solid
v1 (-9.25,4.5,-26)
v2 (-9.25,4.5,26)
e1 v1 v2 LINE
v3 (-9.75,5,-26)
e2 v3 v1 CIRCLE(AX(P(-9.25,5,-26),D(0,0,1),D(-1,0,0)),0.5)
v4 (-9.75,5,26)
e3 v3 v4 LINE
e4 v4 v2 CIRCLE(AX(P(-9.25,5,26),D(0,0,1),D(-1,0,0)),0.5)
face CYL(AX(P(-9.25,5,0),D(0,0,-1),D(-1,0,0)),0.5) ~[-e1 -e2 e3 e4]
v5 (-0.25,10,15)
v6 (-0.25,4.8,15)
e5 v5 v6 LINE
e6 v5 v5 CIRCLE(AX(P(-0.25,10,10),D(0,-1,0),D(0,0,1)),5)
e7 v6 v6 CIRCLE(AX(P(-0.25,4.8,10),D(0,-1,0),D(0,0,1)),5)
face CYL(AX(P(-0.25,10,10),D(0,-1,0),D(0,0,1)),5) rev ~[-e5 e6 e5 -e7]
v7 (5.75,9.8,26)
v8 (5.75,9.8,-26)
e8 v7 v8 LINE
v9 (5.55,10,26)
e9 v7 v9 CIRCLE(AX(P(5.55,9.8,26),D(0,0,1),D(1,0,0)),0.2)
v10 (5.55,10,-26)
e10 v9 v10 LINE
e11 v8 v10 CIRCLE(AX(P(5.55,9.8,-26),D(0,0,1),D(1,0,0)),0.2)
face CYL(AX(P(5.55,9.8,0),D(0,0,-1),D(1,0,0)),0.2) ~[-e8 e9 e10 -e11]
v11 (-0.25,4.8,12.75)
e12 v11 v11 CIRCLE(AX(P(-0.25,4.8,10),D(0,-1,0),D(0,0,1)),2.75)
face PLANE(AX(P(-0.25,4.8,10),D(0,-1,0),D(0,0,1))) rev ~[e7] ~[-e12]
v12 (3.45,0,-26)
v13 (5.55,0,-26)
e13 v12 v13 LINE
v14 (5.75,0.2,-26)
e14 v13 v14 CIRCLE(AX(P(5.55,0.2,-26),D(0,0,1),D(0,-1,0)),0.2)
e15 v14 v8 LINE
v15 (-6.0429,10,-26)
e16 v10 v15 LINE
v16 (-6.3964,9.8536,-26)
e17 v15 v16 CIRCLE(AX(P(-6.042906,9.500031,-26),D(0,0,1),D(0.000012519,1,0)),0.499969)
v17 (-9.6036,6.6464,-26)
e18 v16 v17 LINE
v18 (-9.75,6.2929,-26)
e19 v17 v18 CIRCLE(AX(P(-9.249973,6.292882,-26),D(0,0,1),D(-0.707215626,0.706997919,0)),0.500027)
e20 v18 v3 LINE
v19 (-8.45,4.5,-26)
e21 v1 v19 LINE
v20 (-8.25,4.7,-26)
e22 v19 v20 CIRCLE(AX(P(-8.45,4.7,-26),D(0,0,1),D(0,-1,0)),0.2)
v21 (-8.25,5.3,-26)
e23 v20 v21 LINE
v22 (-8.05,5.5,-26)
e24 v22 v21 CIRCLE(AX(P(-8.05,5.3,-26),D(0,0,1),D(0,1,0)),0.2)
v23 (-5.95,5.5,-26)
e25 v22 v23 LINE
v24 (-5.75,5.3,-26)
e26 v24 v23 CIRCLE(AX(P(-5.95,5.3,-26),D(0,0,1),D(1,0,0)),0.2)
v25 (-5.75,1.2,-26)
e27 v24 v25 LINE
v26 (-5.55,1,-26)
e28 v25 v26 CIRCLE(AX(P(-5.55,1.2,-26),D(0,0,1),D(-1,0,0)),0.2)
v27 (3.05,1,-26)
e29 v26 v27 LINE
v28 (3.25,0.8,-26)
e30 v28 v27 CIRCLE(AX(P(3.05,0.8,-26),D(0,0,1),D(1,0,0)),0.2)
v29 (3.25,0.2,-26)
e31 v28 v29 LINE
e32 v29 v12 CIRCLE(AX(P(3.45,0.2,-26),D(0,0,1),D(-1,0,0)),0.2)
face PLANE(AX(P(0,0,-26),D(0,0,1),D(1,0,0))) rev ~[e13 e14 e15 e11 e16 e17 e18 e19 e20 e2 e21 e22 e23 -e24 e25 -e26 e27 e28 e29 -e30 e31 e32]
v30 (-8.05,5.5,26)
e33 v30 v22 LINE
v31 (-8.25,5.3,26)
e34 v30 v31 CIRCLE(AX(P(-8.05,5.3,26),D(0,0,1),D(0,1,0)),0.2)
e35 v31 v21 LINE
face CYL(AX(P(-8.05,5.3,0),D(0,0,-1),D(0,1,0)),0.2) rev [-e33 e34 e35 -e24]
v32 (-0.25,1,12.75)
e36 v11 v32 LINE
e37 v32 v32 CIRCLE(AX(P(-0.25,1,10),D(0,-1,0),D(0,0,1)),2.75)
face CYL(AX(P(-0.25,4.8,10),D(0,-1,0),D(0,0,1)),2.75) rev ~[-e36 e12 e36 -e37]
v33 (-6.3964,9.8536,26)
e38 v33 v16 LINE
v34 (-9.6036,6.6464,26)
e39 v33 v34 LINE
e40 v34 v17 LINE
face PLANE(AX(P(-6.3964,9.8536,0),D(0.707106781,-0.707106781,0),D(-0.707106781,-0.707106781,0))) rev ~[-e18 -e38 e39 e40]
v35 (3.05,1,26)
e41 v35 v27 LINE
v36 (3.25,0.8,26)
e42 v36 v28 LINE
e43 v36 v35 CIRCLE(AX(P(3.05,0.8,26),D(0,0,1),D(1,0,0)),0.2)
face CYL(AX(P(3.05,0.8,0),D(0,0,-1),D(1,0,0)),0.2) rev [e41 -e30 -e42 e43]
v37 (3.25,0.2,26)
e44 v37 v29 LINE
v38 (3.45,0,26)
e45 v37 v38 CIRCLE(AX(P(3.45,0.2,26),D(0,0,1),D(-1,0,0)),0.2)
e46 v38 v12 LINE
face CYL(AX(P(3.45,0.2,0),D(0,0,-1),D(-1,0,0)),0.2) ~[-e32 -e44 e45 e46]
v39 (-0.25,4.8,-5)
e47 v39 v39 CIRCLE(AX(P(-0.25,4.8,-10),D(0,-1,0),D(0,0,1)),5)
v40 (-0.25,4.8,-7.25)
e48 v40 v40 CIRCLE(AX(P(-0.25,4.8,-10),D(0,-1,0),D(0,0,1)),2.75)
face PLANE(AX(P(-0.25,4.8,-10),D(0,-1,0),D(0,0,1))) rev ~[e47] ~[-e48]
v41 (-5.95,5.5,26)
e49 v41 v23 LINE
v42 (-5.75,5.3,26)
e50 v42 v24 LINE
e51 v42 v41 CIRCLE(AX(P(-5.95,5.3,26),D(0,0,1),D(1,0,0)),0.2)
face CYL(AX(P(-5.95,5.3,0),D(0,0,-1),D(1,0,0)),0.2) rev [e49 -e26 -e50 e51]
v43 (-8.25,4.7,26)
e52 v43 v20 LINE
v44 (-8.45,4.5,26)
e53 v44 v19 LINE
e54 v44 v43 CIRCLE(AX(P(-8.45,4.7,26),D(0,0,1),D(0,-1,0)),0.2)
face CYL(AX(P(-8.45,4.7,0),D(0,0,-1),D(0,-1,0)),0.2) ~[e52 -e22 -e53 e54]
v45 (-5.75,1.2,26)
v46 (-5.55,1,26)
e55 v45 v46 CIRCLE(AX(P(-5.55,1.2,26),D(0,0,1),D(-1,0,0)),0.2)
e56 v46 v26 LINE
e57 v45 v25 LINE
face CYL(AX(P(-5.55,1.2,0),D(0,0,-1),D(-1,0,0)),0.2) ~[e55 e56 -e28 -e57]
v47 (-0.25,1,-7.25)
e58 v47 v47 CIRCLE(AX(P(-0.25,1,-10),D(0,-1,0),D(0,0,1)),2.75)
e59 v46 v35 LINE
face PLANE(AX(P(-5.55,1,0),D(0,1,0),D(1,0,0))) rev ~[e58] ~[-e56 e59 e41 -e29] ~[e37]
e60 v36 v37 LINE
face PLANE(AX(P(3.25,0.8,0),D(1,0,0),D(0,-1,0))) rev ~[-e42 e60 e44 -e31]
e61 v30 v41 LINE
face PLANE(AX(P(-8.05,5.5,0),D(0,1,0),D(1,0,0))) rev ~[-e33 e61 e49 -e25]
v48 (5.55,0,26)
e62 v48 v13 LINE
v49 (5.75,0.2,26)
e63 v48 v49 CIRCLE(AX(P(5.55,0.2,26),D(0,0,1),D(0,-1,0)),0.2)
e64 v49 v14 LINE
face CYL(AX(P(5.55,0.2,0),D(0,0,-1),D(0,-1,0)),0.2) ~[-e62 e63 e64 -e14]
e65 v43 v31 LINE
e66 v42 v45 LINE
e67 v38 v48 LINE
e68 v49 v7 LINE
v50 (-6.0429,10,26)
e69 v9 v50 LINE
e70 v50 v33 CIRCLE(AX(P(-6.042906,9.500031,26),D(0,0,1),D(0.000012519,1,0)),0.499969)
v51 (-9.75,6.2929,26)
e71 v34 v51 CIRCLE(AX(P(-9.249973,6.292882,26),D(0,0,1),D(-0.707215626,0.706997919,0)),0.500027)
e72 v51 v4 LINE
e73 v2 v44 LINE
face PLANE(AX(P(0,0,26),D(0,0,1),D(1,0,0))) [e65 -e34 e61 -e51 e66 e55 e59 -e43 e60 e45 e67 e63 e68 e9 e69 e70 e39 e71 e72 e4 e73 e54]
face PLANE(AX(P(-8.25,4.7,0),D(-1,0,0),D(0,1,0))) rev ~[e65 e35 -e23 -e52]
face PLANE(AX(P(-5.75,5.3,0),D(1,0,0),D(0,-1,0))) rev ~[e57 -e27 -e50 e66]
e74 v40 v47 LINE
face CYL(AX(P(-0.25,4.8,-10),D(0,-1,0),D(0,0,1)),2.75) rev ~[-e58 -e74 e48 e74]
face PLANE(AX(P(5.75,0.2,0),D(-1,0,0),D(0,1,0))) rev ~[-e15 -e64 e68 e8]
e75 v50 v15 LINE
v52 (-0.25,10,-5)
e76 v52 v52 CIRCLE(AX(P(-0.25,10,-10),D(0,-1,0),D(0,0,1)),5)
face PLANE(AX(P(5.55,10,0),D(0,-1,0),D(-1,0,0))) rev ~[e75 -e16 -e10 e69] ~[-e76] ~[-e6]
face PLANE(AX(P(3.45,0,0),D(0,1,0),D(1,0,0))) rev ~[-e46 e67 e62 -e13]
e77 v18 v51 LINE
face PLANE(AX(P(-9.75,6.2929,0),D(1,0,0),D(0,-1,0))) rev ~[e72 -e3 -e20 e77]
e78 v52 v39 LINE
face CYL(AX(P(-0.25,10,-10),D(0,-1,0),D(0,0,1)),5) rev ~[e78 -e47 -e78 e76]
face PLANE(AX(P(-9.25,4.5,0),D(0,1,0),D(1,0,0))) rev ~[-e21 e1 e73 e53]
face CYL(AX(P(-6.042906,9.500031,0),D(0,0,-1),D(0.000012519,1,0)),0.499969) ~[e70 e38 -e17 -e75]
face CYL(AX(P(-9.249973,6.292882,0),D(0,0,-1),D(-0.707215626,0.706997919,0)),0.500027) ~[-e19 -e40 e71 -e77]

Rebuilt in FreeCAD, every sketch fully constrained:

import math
import FreeCAD as App
import Part
import Sketcher
from FreeCAD import Vector
Q = App.Units.Quantity

doc = App.newDocument("Part")
params = doc.addObject("Spreadsheet::Sheet", "Params")
for row, (alias, value) in enumerate([
    ("sketch1_radius", "0.5 mm"),
    ("sketch1_radius2", "0.2 mm"),
    ("sketch1_width", "0.8 mm"),
    ("sketch1_width2", "2.1 mm"),
    ("sketch1_width3", "8.6 mm"),
    ("pad1_length", "52 mm"),
    ("sketch2_diameter", "5.5 mm"),
    ("hole_diameter", "5.5 mm"),
    ("hole_depth", "10 mm"),
    ("hole_cbore_diameter", "10 mm"),
    ("hole_cbore_depth", "5.2 mm"),
    ("sketch3_diameter", "5.5 mm"),
    ("hole2_diameter", "5.5 mm"),
    ("hole2_depth", "10 mm"),
    ("hole2_cbore_diameter", "10 mm"),
    ("hole2_cbore_depth", "5.2 mm"),
], start=1):
    params.set(f"A{row}", alias)
    params.set(f"B{row}", "=" + value)
    params.setAlias(f"B{row}", alias)

body = doc.addObject("PartDesign::Body", "Body")

# Sketch on XY plane
sketch1 = doc.addObject("Sketcher::SketchObject", "Sketch")
body.addObject(sketch1)
sketch1.AttachmentSupport = (doc.XY_Plane, [""])
sketch1.MapMode = "FlatFace"
sketch1.addGeometry([
    Part.ArcOfCircle(Part.Circle(Vector(-9.25, 6.29, 0), Vector(0, 0, 1), 0.5), math.radians(135), math.radians(180)),  # 0
    Part.LineSegment(Vector(-9.75, 6.29, 0), Vector(-9.75, 5, 0)),  # 1
    Part.ArcOfCircle(Part.Circle(Vector(-9.25, 5, 0), Vector(0, 0, 1), 0.5), math.radians(180), math.radians(270)),  # 2
    Part.LineSegment(Vector(-9.25, 4.5, 0), Vector(-8.45, 4.5, 0)),  # 3
    Part.ArcOfCircle(Part.Circle(Vector(-8.45, 4.7, 0), Vector(0, 0, 1), 0.2), math.radians(-90), math.radians(0)),  # 4
    Part.LineSegment(Vector(-8.25, 4.7, 0), Vector(-8.25, 5.3, 0)),  # 5
    Part.ArcOfCircle(Part.Circle(Vector(-8.05, 5.3, 0), Vector(0, 0, 1), 0.2), math.radians(90), math.radians(180)),  # 6
    Part.LineSegment(Vector(-8.05, 5.5, 0), Vector(-5.95, 5.5, 0)),  # 7
    Part.ArcOfCircle(Part.Circle(Vector(-5.95, 5.3, 0), Vector(0, 0, 1), 0.2), math.radians(0), math.radians(90)),  # 8
    Part.LineSegment(Vector(-5.75, 5.3, 0), Vector(-5.75, 1.2, 0)),  # 9
    Part.ArcOfCircle(Part.Circle(Vector(-5.55, 1.2, 0), Vector(0, 0, 1), 0.2), math.radians(180), math.radians(270)),  # 10
    Part.LineSegment(Vector(-5.55, 1, 0), Vector(3.05, 1, 0)),  # 11
    Part.ArcOfCircle(Part.Circle(Vector(3.05, 0.8, 0), Vector(0, 0, 1), 0.2), math.radians(0), math.radians(90)),  # 12
    Part.LineSegment(Vector(3.25, 0.8, 0), Vector(3.25, 0.2, 0)),  # 13
    Part.ArcOfCircle(Part.Circle(Vector(3.45, 0.2, 0), Vector(0, 0, 1), 0.2), math.radians(180), math.radians(270)),  # 14
    Part.LineSegment(Vector(3.45, 0, 0), Vector(5.55, 0, 0)),  # 15
    Part.ArcOfCircle(Part.Circle(Vector(5.55, 0.2, 0), Vector(0, 0, 1), 0.2), math.radians(-90), math.radians(0)),  # 16
    Part.LineSegment(Vector(5.75, 0.2, 0), Vector(5.75, 9.8, 0)),  # 17
    Part.ArcOfCircle(Part.Circle(Vector(5.55, 9.8, 0), Vector(0, 0, 1), 0.2), math.radians(0), math.radians(90)),  # 18
    Part.LineSegment(Vector(5.55, 10, 0), Vector(-6.04, 10, 0)),  # 19
    Part.ArcOfCircle(Part.Circle(Vector(-6.04, 9.5, 0), Vector(0, 0, 1), 0.5), math.radians(90), math.radians(135)),  # 20
    Part.LineSegment(Vector(-6.4, 9.85, 0), Vector(-9.6, 6.65, 0)),  # 21
], False)
sketch1.addConstraint([
    Sketcher.Constraint("Tangent", 0, 2, 1, 1),
    Sketcher.Constraint("Tangent", 1, 2, 2, 1),
    Sketcher.Constraint("Tangent", 2, 2, 3, 1),
    Sketcher.Constraint("Tangent", 3, 2, 4, 1),
    Sketcher.Constraint("Tangent", 4, 2, 5, 1),
    Sketcher.Constraint("Tangent", 5, 2, 6, 2),
    Sketcher.Constraint("Tangent", 6, 1, 7, 1),
    Sketcher.Constraint("Tangent", 7, 2, 8, 2),
    Sketcher.Constraint("Tangent", 8, 1, 9, 1),
    Sketcher.Constraint("Tangent", 9, 2, 10, 1),
    Sketcher.Constraint("Tangent", 10, 2, 11, 1),
    Sketcher.Constraint("Tangent", 11, 2, 12, 2),
    Sketcher.Constraint("Tangent", 12, 1, 13, 1),
    Sketcher.Constraint("Tangent", 13, 2, 14, 1),
    Sketcher.Constraint("Tangent", 14, 2, 15, 1),
    Sketcher.Constraint("Tangent", 15, 2, 16, 1),
    Sketcher.Constraint("Tangent", 16, 2, 17, 1),
    Sketcher.Constraint("Tangent", 17, 2, 18, 1),
    Sketcher.Constraint("Tangent", 18, 2, 19, 1),
    Sketcher.Constraint("Tangent", 19, 2, 20, 1),
    Sketcher.Constraint("Tangent", 20, 2, 21, 1),
    Sketcher.Constraint("Tangent", 21, 2, 0, 1),
    Sketcher.Constraint("Vertical", 1),
    Sketcher.Constraint("Horizontal", 3),
    Sketcher.Constraint("Vertical", 5),
    Sketcher.Constraint("Horizontal", 7),
    Sketcher.Constraint("Vertical", 9),
    Sketcher.Constraint("Horizontal", 11),
    Sketcher.Constraint("Vertical", 13),
    Sketcher.Constraint("Horizontal", 15),
    Sketcher.Constraint("Vertical", 17),
    Sketcher.Constraint("Horizontal", 19),
    Sketcher.Constraint("Equal", 0, 2),
    Sketcher.Constraint("Equal", 4, 6),
    Sketcher.Constraint("Equal", 6, 8),
    Sketcher.Constraint("Equal", 8, 10),
    Sketcher.Constraint("Equal", 10, 12),
    Sketcher.Constraint("Equal", 12, 14),
    Sketcher.Constraint("Equal", 14, 16),
    Sketcher.Constraint("Equal", 16, 18),
    Sketcher.Constraint("Equal", 2, 20),
    Sketcher.Constraint("PointOnObject", 14, 2, -1),
    Sketcher.Constraint("Equal", 7, 15),
    Sketcher.Constraint("Equal", 5, 13),
    Sketcher.Constraint("Radius", 0, Q("0.5 mm")),
    Sketcher.Constraint("Radius", 4, Q("0.2 mm")),
    Sketcher.Constraint("Angle", 21, Q("-135 deg")),
    Sketcher.Constraint("DistanceX", 3, 1, 3, 2, Q("0.8 mm")),
    Sketcher.Constraint("DistanceX", 7, 1, 7, 2, Q("2.1 mm")),
    Sketcher.Constraint("DistanceX", 11, 1, 11, 2, Q("8.6 mm")),
    Sketcher.Constraint("DistanceY", 5, 1, 5, 2, Q("0.6 mm")),
    Sketcher.Constraint("DistanceY", 9, 2, 9, 1, Q("4.1 mm")),
    Sketcher.Constraint("DistanceY", 17, 1, 17, 2, Q("9.6 mm")),
    Sketcher.Constraint("DistanceX", 19, 2, 19, 1, Q("11.593 mm")),
    Sketcher.Constraint("DistanceX", 0, 3, -1, 1, Q("9.25 mm")),
])
sketch1.setExpression("Constraints[44]", "Params.sketch1_radius")
sketch1.setExpression("Constraints[45]", "Params.sketch1_radius2")
sketch1.setExpression("Constraints[47]", "Params.sketch1_width")
sketch1.setExpression("Constraints[48]", "Params.sketch1_width2")
sketch1.setExpression("Constraints[49]", "Params.sketch1_width3")
pad1 = doc.addObject("PartDesign::Pad", "Pad")
body.addObject(pad1)
pad1.Profile = sketch1
pad1.setExpression("Length", "Params.pad1_length")
pad1.Midplane = True

# Sketch on XZ plane
sketch2 = doc.addObject("Sketcher::SketchObject", "Sketch001")
body.addObject(sketch2)
sketch2.AttachmentSupport = (doc.XZ_Plane, [""])
sketch2.MapMode = "FlatFace"
sketch2.AttachmentOffset = App.Placement(Vector(0, 0, -10), App.Rotation())
sketch2.addGeometry(Part.Circle(Vector(-0.2, -10, 0), Vector(0, 0, 1), 2.8), False)
sketch2.addConstraint([
    Sketcher.Constraint("Diameter", 0, Q("5.5 mm")),
    Sketcher.Constraint("DistanceY", 0, 3, -1, 1, Q("10 mm")),
    Sketcher.Constraint("DistanceX", 0, 3, -1, 1, Q("0.25 mm")),
])
sketch2.setExpression("Constraints[0]", "Params.sketch2_diameter")
doc.recompute()
hole = doc.addObject("PartDesign::Hole", "Hole")
body.addObject(hole)
hole.Profile = sketch2
hole.ThreadType = "None"
hole.setExpression("Diameter", "Params.hole_diameter")
hole.DepthType = "Dimension"
hole.setExpression("Depth", "Params.hole_depth")
hole.DrillPoint = "Flat"
hole.HoleCutType = "Counterbore"
hole.setExpression("HoleCutDiameter", "Params.hole_cbore_diameter")
hole.setExpression("HoleCutDepth", "Params.hole_cbore_depth")
hole.Reversed = True

# Sketch on XZ plane
sketch3 = doc.addObject("Sketcher::SketchObject", "Sketch002")
body.addObject(sketch3)
sketch3.AttachmentSupport = (doc.XZ_Plane, [""])
sketch3.MapMode = "FlatFace"
sketch3.AttachmentOffset = App.Placement(Vector(0, 0, -10), App.Rotation())
sketch3.addGeometry(Part.Circle(Vector(-0.2, 10, 0), Vector(0, 0, 1), 2.8), False)
sketch3.addConstraint([
    Sketcher.Constraint("Diameter", 0, Q("5.5 mm")),
    Sketcher.Constraint("DistanceY", -1, 1, 0, 3, Q("10 mm")),
    Sketcher.Constraint("DistanceX", 0, 3, -1, 1, Q("0.25 mm")),
])
sketch3.setExpression("Constraints[0]", "Params.sketch3_diameter")
doc.recompute()
hole2 = doc.addObject("PartDesign::Hole", "Hole001")
body.addObject(hole2)
hole2.Profile = sketch3
hole2.ThreadType = "None"
hole2.setExpression("Diameter", "Params.hole2_diameter")
hole2.DepthType = "Dimension"
hole2.setExpression("Depth", "Params.hole2_depth")
hole2.DrillPoint = "Flat"
hole2.HoleCutType = "Counterbore"
hole2.setExpression("HoleCutDiameter", "Params.hole2_cbore_diameter")
hole2.setExpression("HoleCutDepth", "Params.hole2_cbore_depth")
hole2.Reversed = True

doc.recompute()
